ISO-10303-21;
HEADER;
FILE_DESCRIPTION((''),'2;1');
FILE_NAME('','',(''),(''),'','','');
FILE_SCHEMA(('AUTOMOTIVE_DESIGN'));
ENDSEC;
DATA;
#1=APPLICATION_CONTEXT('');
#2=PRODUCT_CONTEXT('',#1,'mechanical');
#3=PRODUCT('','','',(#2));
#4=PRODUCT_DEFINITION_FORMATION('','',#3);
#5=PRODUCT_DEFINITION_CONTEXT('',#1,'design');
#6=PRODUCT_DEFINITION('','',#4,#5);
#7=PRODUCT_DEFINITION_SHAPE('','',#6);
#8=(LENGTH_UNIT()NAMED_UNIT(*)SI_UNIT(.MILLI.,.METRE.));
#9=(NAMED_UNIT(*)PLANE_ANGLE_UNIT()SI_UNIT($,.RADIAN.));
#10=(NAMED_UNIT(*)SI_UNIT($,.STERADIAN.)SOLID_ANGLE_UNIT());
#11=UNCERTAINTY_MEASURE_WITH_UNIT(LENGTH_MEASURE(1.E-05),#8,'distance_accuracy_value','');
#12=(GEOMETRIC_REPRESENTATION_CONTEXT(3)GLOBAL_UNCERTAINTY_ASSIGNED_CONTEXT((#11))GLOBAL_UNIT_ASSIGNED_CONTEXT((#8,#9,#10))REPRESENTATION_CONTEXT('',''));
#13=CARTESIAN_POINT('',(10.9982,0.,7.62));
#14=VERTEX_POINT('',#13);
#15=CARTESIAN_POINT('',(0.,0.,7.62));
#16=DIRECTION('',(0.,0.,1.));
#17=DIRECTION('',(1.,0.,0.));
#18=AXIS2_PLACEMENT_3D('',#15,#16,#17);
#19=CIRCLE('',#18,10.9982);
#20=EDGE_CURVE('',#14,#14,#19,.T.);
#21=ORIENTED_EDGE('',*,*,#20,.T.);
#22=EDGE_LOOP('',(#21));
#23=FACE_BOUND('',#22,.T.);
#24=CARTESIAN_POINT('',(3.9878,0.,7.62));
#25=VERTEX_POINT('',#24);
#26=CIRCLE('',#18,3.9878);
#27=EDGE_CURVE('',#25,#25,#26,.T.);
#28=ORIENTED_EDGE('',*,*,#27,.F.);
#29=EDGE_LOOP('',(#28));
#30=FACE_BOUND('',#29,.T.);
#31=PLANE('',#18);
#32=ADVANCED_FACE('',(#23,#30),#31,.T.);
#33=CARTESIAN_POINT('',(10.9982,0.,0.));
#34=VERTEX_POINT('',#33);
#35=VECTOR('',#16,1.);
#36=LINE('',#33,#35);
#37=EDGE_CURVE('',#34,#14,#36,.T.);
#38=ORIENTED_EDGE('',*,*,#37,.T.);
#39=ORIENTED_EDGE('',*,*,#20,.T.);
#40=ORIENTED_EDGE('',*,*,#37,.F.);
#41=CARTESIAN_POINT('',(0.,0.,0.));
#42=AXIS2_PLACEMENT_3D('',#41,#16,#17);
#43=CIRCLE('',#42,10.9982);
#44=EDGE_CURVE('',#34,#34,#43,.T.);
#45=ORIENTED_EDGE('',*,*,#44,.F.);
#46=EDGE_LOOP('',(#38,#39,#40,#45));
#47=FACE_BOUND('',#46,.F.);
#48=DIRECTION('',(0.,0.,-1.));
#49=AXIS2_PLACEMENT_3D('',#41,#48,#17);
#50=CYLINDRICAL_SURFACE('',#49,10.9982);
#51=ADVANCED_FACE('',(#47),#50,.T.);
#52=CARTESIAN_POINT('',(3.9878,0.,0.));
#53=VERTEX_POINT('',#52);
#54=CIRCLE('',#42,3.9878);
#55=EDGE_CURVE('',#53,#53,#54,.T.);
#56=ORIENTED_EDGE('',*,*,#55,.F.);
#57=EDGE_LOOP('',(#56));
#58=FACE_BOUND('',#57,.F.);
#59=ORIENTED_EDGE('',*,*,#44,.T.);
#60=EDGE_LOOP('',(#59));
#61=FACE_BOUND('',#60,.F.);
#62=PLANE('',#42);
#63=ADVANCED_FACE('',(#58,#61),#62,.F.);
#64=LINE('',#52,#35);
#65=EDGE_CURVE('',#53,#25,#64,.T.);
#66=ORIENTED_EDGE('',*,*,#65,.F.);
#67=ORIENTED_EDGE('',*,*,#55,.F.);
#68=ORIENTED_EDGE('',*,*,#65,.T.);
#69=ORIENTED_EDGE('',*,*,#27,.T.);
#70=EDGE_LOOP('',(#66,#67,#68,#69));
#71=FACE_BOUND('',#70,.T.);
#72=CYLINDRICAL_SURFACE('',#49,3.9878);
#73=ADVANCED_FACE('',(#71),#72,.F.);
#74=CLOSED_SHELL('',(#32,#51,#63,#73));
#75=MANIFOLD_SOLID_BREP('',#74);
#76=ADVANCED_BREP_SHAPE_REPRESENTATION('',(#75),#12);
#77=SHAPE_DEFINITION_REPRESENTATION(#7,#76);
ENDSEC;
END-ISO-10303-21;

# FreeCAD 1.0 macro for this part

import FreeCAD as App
import Part
import Sketcher
from FreeCAD import Vector
Q = App.Units.Quantity

doc = App.newDocument("Part")
body = doc.addObject("PartDesign::Body", "Body")

# Sketch on XY plane
sketch1 = body.newObject("Sketcher::SketchObject", "Sketch")
sketch1.AttachmentSupport = (doc.getObject("XY_Plane"), [""])
sketch1.MapMode = "FlatFace"
sketch1.addGeometry(Part.Circle(Vector(0, 0, 0), Vector(0, 0, 1), 11), False)
sketch1.addGeometry(Part.Circle(Vector(0, 0, 0), Vector(0, 0, 1), 4), False)
sketch1.addConstraint(Sketcher.Constraint("Coincident", 0, 3, -1, 1))
sketch1.addConstraint(Sketcher.Constraint("Coincident", 1, 3, -1, 1))
sketch1.addConstraint(Sketcher.Constraint("Diameter", 0, Q("0.866 in")))
sketch1.addConstraint(Sketcher.Constraint("Diameter", 1, Q("0.314 in")))
pad1 = body.newObject("PartDesign::Pad", "Pad")
pad1.Profile = sketch1
pad1.Length = Q("0.3 in")

doc.recompute()
